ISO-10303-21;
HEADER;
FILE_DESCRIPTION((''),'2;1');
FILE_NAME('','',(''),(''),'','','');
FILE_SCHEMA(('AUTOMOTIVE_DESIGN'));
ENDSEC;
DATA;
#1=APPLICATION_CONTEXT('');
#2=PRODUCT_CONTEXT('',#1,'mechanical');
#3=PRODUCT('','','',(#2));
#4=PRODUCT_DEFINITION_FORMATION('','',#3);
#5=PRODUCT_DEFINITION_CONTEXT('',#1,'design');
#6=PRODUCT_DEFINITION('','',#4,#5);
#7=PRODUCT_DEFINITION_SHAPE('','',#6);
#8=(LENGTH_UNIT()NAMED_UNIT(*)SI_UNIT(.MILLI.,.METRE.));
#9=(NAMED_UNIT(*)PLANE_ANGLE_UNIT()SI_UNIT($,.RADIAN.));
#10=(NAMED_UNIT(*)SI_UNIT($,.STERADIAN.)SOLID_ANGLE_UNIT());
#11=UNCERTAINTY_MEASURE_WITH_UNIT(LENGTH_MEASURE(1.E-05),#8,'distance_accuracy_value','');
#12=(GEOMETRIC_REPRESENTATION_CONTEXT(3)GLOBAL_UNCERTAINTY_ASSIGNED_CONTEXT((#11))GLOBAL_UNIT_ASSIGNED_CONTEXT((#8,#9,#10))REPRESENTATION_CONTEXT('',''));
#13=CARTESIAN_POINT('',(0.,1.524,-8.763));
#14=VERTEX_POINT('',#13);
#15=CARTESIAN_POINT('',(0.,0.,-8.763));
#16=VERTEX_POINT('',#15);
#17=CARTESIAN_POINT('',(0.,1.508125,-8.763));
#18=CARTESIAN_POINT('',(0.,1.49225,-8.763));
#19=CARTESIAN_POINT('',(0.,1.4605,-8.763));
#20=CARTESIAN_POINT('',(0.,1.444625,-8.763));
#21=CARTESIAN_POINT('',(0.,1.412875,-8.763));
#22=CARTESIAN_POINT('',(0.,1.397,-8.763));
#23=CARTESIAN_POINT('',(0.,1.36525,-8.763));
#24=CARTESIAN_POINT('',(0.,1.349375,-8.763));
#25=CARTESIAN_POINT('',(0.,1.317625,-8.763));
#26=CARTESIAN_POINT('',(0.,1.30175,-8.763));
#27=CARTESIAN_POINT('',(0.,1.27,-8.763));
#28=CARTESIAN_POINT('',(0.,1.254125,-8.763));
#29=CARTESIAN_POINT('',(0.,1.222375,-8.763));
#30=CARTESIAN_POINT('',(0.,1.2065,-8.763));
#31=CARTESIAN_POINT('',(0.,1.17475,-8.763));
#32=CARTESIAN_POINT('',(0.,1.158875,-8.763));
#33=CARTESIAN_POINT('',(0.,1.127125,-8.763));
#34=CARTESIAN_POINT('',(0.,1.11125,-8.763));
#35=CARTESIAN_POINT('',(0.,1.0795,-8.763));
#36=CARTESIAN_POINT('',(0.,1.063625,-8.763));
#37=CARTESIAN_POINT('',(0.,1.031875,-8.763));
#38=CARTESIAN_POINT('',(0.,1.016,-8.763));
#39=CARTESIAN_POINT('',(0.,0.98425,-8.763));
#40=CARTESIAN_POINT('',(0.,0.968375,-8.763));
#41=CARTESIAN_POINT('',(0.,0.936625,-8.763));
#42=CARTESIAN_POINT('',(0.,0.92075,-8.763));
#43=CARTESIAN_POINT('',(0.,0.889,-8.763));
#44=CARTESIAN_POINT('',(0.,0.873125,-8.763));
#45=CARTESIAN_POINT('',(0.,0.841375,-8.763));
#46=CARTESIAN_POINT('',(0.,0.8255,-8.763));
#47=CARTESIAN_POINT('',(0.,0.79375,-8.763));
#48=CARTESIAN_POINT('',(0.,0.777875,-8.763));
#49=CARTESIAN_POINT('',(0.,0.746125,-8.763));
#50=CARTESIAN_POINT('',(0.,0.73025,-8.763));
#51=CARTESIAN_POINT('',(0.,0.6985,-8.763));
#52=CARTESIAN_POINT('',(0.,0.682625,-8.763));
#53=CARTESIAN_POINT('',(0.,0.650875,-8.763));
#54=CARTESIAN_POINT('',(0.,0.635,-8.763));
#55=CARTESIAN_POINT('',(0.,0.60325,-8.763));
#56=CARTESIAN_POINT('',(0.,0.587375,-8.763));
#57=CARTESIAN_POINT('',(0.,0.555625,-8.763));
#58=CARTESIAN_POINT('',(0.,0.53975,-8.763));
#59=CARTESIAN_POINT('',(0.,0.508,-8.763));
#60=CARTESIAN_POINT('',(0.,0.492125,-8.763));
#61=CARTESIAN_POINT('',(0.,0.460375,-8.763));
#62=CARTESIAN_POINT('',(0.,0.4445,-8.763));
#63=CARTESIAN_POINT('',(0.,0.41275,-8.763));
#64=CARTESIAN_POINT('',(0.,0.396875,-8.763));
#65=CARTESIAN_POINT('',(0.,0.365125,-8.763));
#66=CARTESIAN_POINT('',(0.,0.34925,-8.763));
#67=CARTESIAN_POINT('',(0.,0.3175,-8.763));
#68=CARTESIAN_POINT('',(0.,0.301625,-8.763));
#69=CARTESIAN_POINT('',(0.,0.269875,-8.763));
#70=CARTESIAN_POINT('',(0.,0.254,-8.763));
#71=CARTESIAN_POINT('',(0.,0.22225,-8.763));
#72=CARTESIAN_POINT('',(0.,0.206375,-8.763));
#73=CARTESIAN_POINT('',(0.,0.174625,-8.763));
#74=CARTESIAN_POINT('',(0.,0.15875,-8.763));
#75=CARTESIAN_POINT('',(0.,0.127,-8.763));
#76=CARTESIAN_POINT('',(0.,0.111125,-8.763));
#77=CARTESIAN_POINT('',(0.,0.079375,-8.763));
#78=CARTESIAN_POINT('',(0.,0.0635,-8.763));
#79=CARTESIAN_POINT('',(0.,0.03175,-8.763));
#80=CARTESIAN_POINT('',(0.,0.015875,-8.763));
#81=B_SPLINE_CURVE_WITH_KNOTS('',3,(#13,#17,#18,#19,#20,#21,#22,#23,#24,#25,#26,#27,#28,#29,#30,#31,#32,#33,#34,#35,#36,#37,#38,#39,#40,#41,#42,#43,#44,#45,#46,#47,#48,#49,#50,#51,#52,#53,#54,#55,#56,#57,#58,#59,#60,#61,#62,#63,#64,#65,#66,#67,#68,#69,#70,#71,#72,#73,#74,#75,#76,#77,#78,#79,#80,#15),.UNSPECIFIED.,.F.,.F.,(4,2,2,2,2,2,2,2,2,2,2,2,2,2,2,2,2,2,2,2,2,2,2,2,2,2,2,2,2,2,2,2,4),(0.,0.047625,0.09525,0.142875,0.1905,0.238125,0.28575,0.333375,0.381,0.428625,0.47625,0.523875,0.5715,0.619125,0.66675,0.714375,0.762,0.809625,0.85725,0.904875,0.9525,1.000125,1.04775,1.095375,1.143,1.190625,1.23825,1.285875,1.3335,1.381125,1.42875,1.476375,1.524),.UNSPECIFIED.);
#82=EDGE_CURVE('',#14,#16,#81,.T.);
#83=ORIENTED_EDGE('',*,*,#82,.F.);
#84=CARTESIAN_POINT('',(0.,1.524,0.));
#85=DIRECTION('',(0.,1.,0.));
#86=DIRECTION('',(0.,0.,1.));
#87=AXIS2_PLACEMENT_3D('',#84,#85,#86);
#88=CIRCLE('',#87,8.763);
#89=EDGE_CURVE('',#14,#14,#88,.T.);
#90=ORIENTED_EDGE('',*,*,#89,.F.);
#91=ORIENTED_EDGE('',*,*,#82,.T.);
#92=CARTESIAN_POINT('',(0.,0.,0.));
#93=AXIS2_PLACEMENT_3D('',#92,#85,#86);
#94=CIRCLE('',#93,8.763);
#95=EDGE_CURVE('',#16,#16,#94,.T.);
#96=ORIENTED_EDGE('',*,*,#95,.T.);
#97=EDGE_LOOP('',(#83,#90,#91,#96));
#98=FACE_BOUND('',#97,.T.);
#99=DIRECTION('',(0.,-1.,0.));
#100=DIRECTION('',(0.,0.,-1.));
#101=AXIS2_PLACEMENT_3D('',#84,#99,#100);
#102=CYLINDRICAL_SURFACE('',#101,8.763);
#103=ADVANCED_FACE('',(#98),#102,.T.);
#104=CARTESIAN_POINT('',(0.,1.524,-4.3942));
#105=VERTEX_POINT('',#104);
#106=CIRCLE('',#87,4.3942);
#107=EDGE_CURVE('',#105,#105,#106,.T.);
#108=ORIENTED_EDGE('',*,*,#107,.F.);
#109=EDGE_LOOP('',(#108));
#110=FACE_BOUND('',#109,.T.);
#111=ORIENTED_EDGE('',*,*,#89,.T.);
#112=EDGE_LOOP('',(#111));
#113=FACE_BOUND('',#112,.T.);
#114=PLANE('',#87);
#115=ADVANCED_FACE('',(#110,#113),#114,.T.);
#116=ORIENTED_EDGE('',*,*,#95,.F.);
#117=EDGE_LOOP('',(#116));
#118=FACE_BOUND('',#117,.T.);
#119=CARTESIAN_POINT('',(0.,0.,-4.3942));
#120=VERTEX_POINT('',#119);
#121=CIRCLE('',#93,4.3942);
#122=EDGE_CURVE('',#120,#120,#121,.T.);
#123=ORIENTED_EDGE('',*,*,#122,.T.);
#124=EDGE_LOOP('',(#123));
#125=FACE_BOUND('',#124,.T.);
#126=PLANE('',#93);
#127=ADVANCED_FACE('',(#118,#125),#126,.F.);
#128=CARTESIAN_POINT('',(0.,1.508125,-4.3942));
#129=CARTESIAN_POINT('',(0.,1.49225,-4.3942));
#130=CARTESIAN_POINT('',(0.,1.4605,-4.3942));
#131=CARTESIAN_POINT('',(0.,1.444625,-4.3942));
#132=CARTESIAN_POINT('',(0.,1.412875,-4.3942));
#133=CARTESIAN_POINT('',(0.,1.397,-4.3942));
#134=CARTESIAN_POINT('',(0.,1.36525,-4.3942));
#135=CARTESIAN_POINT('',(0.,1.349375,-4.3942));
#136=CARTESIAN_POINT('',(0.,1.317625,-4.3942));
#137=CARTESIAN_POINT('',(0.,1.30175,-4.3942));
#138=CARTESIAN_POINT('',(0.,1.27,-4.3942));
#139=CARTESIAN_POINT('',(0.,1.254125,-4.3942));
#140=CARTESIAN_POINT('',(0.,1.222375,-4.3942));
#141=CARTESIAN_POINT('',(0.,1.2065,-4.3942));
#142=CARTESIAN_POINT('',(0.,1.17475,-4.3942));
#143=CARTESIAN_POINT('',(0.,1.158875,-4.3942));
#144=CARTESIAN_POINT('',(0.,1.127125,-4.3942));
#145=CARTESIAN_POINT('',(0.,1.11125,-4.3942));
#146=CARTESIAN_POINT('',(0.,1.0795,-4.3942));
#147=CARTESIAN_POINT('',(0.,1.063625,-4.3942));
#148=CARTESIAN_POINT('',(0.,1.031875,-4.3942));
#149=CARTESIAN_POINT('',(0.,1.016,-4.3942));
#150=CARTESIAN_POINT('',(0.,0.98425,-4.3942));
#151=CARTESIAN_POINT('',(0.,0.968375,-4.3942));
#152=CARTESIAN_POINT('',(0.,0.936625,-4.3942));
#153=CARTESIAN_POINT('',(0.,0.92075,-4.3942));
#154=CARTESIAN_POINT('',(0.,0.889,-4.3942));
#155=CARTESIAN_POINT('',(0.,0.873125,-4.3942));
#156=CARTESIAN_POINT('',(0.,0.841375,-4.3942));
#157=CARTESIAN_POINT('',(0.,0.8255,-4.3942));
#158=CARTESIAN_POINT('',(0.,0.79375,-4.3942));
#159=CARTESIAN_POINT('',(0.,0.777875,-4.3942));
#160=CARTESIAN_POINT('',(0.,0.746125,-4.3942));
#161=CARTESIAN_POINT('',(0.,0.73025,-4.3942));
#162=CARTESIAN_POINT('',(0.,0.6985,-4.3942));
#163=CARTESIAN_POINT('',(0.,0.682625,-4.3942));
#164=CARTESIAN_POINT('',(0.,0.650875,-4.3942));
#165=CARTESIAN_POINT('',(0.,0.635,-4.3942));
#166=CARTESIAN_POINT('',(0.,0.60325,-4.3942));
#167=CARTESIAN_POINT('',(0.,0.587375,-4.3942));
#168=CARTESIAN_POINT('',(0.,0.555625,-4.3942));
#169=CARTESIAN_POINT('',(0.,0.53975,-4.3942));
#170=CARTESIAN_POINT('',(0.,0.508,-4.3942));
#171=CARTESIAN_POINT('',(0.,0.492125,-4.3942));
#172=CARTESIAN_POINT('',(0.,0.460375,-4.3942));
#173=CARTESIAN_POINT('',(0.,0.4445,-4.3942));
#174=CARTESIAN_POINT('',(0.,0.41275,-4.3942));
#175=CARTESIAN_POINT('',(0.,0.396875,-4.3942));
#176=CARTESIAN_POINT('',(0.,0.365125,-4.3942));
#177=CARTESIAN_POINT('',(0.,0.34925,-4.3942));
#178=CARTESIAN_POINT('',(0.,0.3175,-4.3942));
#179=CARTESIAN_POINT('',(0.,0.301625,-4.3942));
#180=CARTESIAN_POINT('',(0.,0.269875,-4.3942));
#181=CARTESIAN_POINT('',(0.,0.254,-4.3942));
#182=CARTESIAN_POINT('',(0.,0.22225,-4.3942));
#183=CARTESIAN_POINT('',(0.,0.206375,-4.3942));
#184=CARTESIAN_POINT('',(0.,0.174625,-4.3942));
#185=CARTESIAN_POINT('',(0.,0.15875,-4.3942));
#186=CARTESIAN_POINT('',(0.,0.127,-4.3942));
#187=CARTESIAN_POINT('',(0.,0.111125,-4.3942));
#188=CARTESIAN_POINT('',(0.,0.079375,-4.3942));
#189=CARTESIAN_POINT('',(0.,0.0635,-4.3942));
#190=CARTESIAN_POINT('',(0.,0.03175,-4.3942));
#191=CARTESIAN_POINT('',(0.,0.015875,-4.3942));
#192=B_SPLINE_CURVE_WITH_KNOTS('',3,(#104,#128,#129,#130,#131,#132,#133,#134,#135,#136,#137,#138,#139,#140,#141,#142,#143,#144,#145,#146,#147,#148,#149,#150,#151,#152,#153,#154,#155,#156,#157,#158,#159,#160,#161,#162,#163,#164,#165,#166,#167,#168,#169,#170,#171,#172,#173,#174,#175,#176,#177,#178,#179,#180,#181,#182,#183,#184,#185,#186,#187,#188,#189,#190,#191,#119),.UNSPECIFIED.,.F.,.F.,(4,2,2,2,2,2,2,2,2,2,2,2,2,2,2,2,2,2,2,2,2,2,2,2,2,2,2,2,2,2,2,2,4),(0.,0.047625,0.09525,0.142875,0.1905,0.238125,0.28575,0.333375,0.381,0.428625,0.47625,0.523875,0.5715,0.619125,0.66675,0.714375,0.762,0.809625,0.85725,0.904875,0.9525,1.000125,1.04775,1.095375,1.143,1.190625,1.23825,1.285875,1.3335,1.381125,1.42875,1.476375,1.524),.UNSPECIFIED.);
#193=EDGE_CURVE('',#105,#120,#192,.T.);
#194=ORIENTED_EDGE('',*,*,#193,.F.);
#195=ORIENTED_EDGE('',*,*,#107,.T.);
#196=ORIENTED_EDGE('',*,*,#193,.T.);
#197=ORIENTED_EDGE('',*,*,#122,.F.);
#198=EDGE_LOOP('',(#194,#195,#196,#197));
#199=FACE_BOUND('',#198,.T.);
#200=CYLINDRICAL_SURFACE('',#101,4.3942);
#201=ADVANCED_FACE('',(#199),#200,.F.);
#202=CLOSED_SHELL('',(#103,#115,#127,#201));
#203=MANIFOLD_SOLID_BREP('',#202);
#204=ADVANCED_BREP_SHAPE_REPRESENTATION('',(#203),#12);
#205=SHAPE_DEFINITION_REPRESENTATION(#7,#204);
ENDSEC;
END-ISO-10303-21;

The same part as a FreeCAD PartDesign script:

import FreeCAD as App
import Part
import Sketcher
from FreeCAD import Vector
Q = App.Units.Quantity

doc = App.newDocument("Part")
body = doc.addObject("PartDesign::Body", "Body")

# Sketch on XZ plane
sketch1 = body.newObject("Sketcher::SketchObject", "Sketch")
sketch1.AttachmentSupport = (doc.getObject("XZ_Plane"), [""])
sketch1.MapMode = "FlatFace"
sketch1.addGeometry(Part.Circle(Vector(0, 0, 0), Vector(0, 0, 1), 8.763), False)
sketch1.addGeometry(Part.Circle(Vector(0, 0, 0), Vector(0, 0, 1), 4.3942), False)
sketch1.addConstraint(Sketcher.Constraint("Coincident", 0, 3, -1, 1))
sketch1.addConstraint(Sketcher.Constraint("Coincident", 1, 3, -1, 1))
sketch1.addConstraint(Sketcher.Constraint("Diameter", 0, Q("0.69 in")))
sketch1.addConstraint(Sketcher.Constraint("Diameter", 1, Q("0.346 in")))
pad1 = body.newObject("PartDesign::Pad", "Pad")
pad1.Profile = sketch1
pad1.Length = Q("0.06 in")
pad1.Reversed = True

doc.recompute()
